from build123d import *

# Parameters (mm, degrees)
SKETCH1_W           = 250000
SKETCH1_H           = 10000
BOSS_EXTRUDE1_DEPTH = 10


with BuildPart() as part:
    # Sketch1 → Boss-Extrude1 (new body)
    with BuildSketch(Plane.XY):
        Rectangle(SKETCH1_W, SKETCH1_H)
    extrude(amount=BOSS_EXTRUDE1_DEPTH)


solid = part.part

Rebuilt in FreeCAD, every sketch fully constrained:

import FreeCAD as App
import Part
import Sketcher

doc = App.newDocument("Part")
body = doc.addObject("PartDesign::Body", "Body")

sketch1 = doc.addObject("Sketcher::SketchObject", "Sketch")
body.addObject(sketch1)
sketch1.AttachmentSupport = (doc.XY_Plane, [""])
sketch1.MapMode = "FlatFace"
sketch1.addGeometry([
    Part.LineSegment(App.Vector(-125000, 5000, 0), App.Vector(-125000, -5000, 0)),
    Part.LineSegment(App.Vector(-125000, -5000, 0), App.Vector(125000, -5000, 0)),
    Part.LineSegment(App.Vector(125000, -5000, 0), App.Vector(125000, 5000, 0)),
    Part.LineSegment(App.Vector(125000, 5000, 0), App.Vector(-125000, 5000, 0)),
], False)
sketch1.addConstraint([
    Sketcher.Constraint("Coincident", 0, 2, 1, 1),
    Sketcher.Constraint("Coincident", 1, 2, 2, 1),
    Sketcher.Constraint("Coincident", 2, 2, 3, 1),
    Sketcher.Constraint("Coincident", 3, 2, 0, 1),
    Sketcher.Constraint("Vertical", 0),
    Sketcher.Constraint("Horizontal", 1),
    Sketcher.Constraint("Vertical", 2),
    Sketcher.Constraint("Horizontal", 3),
    Sketcher.Constraint("Symmetric", 0, 2, 2, 2, -1, 1),
    Sketcher.Constraint("DistanceX", 1, 1, 1, 2, 250000.0),
    Sketcher.Constraint("DistanceY", 0, 2, 0, 1, 10000.0),
])
pad1 = doc.addObject("PartDesign::Pad", "Pad")
body.addObject(pad1)
pad1.Profile = sketch1
pad1.Length = 10

doc.recompute()
